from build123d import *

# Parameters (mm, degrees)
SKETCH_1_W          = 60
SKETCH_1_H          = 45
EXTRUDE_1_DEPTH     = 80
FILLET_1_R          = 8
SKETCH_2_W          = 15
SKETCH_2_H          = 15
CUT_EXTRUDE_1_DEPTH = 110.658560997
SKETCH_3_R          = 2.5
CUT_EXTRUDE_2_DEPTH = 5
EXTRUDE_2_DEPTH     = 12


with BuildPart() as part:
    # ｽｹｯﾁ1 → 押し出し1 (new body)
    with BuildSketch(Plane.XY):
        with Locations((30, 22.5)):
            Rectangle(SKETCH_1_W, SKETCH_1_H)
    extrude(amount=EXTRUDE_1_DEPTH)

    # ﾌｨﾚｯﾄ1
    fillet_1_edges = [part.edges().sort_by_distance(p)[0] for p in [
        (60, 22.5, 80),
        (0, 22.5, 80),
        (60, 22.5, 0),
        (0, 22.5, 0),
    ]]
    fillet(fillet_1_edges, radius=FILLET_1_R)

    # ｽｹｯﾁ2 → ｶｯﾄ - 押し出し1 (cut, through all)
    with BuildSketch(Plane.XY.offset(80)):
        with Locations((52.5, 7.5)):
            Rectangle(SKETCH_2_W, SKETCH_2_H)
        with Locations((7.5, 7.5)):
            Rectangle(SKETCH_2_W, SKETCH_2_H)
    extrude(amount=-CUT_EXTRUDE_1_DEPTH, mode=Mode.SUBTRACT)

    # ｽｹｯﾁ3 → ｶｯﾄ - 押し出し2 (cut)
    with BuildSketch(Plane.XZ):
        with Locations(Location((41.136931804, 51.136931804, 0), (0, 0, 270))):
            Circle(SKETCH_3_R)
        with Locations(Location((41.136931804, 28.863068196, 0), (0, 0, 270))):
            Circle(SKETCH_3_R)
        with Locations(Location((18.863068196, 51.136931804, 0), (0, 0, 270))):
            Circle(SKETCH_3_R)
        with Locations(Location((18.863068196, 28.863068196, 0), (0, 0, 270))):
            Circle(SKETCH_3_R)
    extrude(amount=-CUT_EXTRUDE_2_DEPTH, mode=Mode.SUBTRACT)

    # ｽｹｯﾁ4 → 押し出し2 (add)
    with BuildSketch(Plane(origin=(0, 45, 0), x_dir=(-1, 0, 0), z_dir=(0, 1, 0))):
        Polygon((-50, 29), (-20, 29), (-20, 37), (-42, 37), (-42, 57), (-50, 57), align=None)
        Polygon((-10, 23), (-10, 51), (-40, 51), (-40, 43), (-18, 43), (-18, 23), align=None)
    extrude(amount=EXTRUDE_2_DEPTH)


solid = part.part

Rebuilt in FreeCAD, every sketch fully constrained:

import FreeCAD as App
import Part
import Sketcher

V = App.Vector
Q = App.Units.Quantity


def edges_at(feature, points):
    """Names of the edges that pass closest to the given points."""
    edges = feature.Shape.Edges
    near = lambda p: min(range(len(edges)), key=lambda i: edges[i].distToShape(Part.Vertex(*p))[0])
    return sorted({f"Edge{near(p) + 1}" for p in points})


def add_polygon(sketch, points):
    """Adds a closed chain of lines whose ends are joined by coincident constraints."""
    first, n = sketch.GeometryCount, len(points)
    for a, b in zip(points, points[1:] + points[:1]):
        sketch.addGeometry(Part.LineSegment(App.Vector(*a, 0), App.Vector(*b, 0)), False)
    for i in range(n):
        sketch.addConstraint(Sketcher.Constraint("Coincident", first + i, 2, first + (i + 1) % n, 1))

doc = App.newDocument("Part")
params = doc.addObject("Spreadsheet::Sheet", "Params")
for row, (alias, value) in enumerate([
    ("sketch1_width", "60 mm"),
    ("sketch1_height", "45 mm"),
    ("pad1_length", "80 mm"),
    ("fillet_radius", "8 mm"),
    ("sketch2_width", "15 mm"),
    ("sketch3_diameter", "5 mm"),
    ("pocket2_length", "5 mm"),
    ("sketch4_width", "30 mm"),
    ("sketch4_width2", "22 mm"),
    ("sketch4_height", "20 mm"),
    ("pad2_length", "12 mm"),
], start=1):
    params.set(f"A{row}", alias)
    params.set(f"B{row}", "=" + value)
    params.setAlias(f"B{row}", alias)

body = doc.addObject("PartDesign::Body", "Body")

# Sketch on XY plane
sketch1 = body.newObject("Sketcher::SketchObject", "Sketch")
sketch1.AttachmentSupport = (doc.getObject("XY_Plane"), [""])
sketch1.MapMode = "FlatFace"
add_polygon(sketch1, [(0, 45), (0, 0), (60, 0), (60, 45)])  # lines 0-3
sketch1.addConstraint([
    Sketcher.Constraint("Vertical", 0),
    Sketcher.Constraint("Horizontal", 1),
    Sketcher.Constraint("Vertical", 2),
    Sketcher.Constraint("Horizontal", 3),
    Sketcher.Constraint("Coincident", 0, 2, -1, 1),
    Sketcher.Constraint("DistanceX", 1, 1, 1, 2, Q("60 mm")),
    Sketcher.Constraint("DistanceY", 0, 2, 0, 1, Q("45 mm")),
])
sketch1.setExpression("Constraints[9]", "Params.sketch1_width")
sketch1.setExpression("Constraints[10]", "Params.sketch1_height")
pad1 = body.newObject("PartDesign::Pad", "Pad")
pad1.Profile = sketch1
pad1.setExpression("Length", "Params.pad1_length")
doc.recompute()

fillet = body.newObject("PartDesign::Fillet", "Fillet")
fillet.Base = (pad1, edges_at(pad1, [
    (60, 22.5, 80),
    (0, 22.5, 80),
    (60, 22.5, 0),
    (0, 22.5, 0),
]))
fillet.setExpression("Radius", "Params.fillet_radius")

# Sketch on XY plane
sketch2 = body.newObject("Sketcher::SketchObject", "Sketch001")
sketch2.AttachmentSupport = (doc.getObject("XY_Plane"), [""])
sketch2.MapMode = "FlatFace"
sketch2.AttachmentOffset = App.Placement(V(0, 0, 80), App.Rotation())
add_polygon(sketch2, [(45, 15), (45, 0), (60, 0), (60, 15)])  # lines 0-3
add_polygon(sketch2, [(0, 15), (0, 0), (15, 0), (15, 15)])  # lines 4-7
sketch2.addConstraint([
    Sketcher.Constraint("Vertical", 0),
    Sketcher.Constraint("Horizontal", 1),
    Sketcher.Constraint("Vertical", 2),
    Sketcher.Constraint("Horizontal", 3),
    Sketcher.Constraint("Vertical", 4),
    Sketcher.Constraint("Horizontal", 5),
    Sketcher.Constraint("Vertical", 6),
    Sketcher.Constraint("Horizontal", 7),
    Sketcher.Constraint("Coincident", 4, 2, -1, 1),
    Sketcher.Constraint("PointOnObject", 0, 2, -1),
    Sketcher.Constraint("Horizontal", 3, 2, 6, 2),
    Sketcher.Constraint("Equal", 3, 5),
    Sketcher.Constraint("Equal", 7, 0),
    Sketcher.Constraint("DistanceX", 1, 1, 1, 2, Q("15 mm")),
    Sketcher.Constraint("DistanceX", -1, 1, 0, 2, Q("45 mm")),
])
sketch2.setExpression("Constraints[21]", "Params.sketch2_width")
pocket1 = body.newObject("PartDesign::Pocket", "Pocket")
pocket1.Profile = sketch2
pocket1.Type = "ThroughAll"

# Sketch on XZ plane
sketch3 = body.newObject("Sketcher::SketchObject", "Sketch002")
sketch3.AttachmentSupport = (doc.getObject("XZ_Plane"), [""])
sketch3.MapMode = "FlatFace"
sketch3.addGeometry([
    Part.Circle(V(41.1, 51.1, 0), V(0, 0, 1), 2.5),
    Part.Circle(V(41.1, 28.9, 0), V(0, 0, 1), 2.5),
    Part.Circle(V(18.9, 51.1, 0), V(0, 0, 1), 2.5),
    Part.Circle(V(18.9, 28.9, 0), V(0, 0, 1), 2.5),
], False)
sketch3.addConstraint([
    Sketcher.Constraint("Equal", 0, 1),
    Sketcher.Constraint("Equal", 1, 2),
    Sketcher.Constraint("Equal", 2, 3),
    Sketcher.Constraint("Horizontal", 0, 3, 2, 3),
    Sketcher.Constraint("Horizontal", 1, 3, 3, 3),
    Sketcher.Constraint("Vertical", 0, 3, 1, 3),
    Sketcher.Constraint("Vertical", 2, 3, 3, 3),
    Sketcher.Constraint("Diameter", 0, Q("5 mm")),
    Sketcher.Constraint("DistanceX", -1, 1, 0, 3, Q("41.136932 mm")),
    Sketcher.Constraint("DistanceY", -1, 1, 0, 3, Q("51.136932 mm")),
    Sketcher.Constraint("DistanceY", -1, 1, 1, 3, Q("28.863068 mm")),
    Sketcher.Constraint("DistanceX", -1, 1, 2, 3, Q("18.863068 mm")),
])
sketch3.setExpression("Constraints[7]", "Params.sketch3_diameter")
pocket2 = body.newObject("PartDesign::Pocket", "Pocket001")
pocket2.Profile = sketch3
pocket2.setExpression("Length", "Params.pocket2_length")

# Sketch on XZ plane
sketch4 = body.newObject("Sketcher::SketchObject", "Sketch003")
sketch4.AttachmentSupport = (doc.getObject("XZ_Plane"), [""])
sketch4.MapMode = "FlatFace"
sketch4.AttachmentOffset = App.Placement(V(0, 0, -45), App.Rotation())
add_polygon(sketch4, [(50, 29), (20, 29), (20, 37), (42, 37), (42, 57), (50, 57)])  # lines 0-5
add_polygon(sketch4, [(10, 23), (10, 51), (40, 51), (40, 43), (18, 43), (18, 23)])  # lines 6-11
sketch4.addConstraint([
    Sketcher.Constraint("Horizontal", 0),
    Sketcher.Constraint("Vertical", 1),
    Sketcher.Constraint("Horizontal", 2),
    Sketcher.Constraint("Vertical", 3),
    Sketcher.Constraint("Horizontal", 4),
    Sketcher.Constraint("Vertical", 5),
    Sketcher.Constraint("Vertical", 6),
    Sketcher.Constraint("Horizontal", 7),
    Sketcher.Constraint("Vertical", 8),
    Sketcher.Constraint("Horizontal", 9),
    Sketcher.Constraint("Vertical", 10),
    Sketcher.Constraint("Horizontal", 11),
    Sketcher.Constraint("Equal", 0, 7),
    Sketcher.Constraint("Equal", 2, 9),
    Sketcher.Constraint("Equal", 11, 1),
    Sketcher.Constraint("Equal", 5, 6),
    Sketcher.Constraint("Equal", 1, 8),
    Sketcher.Constraint("DistanceX", 0, 2, 0, 1, Q("30 mm")),
    Sketcher.Constraint("DistanceX", 2, 1, 2, 2, Q("22 mm")),
    Sketcher.Constraint("DistanceY", 3, 1, 3, 2, Q("20 mm")),
    Sketcher.Constraint("DistanceX", -1, 1, 0, 2, Q("20 mm")),
    Sketcher.Constraint("DistanceY", -1, 1, 0, 2, Q("29 mm")),
    Sketcher.Constraint("DistanceX", -1, 1, 6, 2, Q("10 mm")),
    Sketcher.Constraint("DistanceY", -1, 1, 6, 2, Q("51 mm")),
])
sketch4.setExpression("Constraints[29]", "Params.sketch4_width")
sketch4.setExpression("Constraints[30]", "Params.sketch4_width2")
sketch4.setExpression("Constraints[31]", "Params.sketch4_height")
pad2 = body.newObject("PartDesign::Pad", "Pad001")
pad2.Profile = sketch4
pad2.setExpression("Length", "Params.pad2_length")
pad2.Reversed = True

doc.recompute()
